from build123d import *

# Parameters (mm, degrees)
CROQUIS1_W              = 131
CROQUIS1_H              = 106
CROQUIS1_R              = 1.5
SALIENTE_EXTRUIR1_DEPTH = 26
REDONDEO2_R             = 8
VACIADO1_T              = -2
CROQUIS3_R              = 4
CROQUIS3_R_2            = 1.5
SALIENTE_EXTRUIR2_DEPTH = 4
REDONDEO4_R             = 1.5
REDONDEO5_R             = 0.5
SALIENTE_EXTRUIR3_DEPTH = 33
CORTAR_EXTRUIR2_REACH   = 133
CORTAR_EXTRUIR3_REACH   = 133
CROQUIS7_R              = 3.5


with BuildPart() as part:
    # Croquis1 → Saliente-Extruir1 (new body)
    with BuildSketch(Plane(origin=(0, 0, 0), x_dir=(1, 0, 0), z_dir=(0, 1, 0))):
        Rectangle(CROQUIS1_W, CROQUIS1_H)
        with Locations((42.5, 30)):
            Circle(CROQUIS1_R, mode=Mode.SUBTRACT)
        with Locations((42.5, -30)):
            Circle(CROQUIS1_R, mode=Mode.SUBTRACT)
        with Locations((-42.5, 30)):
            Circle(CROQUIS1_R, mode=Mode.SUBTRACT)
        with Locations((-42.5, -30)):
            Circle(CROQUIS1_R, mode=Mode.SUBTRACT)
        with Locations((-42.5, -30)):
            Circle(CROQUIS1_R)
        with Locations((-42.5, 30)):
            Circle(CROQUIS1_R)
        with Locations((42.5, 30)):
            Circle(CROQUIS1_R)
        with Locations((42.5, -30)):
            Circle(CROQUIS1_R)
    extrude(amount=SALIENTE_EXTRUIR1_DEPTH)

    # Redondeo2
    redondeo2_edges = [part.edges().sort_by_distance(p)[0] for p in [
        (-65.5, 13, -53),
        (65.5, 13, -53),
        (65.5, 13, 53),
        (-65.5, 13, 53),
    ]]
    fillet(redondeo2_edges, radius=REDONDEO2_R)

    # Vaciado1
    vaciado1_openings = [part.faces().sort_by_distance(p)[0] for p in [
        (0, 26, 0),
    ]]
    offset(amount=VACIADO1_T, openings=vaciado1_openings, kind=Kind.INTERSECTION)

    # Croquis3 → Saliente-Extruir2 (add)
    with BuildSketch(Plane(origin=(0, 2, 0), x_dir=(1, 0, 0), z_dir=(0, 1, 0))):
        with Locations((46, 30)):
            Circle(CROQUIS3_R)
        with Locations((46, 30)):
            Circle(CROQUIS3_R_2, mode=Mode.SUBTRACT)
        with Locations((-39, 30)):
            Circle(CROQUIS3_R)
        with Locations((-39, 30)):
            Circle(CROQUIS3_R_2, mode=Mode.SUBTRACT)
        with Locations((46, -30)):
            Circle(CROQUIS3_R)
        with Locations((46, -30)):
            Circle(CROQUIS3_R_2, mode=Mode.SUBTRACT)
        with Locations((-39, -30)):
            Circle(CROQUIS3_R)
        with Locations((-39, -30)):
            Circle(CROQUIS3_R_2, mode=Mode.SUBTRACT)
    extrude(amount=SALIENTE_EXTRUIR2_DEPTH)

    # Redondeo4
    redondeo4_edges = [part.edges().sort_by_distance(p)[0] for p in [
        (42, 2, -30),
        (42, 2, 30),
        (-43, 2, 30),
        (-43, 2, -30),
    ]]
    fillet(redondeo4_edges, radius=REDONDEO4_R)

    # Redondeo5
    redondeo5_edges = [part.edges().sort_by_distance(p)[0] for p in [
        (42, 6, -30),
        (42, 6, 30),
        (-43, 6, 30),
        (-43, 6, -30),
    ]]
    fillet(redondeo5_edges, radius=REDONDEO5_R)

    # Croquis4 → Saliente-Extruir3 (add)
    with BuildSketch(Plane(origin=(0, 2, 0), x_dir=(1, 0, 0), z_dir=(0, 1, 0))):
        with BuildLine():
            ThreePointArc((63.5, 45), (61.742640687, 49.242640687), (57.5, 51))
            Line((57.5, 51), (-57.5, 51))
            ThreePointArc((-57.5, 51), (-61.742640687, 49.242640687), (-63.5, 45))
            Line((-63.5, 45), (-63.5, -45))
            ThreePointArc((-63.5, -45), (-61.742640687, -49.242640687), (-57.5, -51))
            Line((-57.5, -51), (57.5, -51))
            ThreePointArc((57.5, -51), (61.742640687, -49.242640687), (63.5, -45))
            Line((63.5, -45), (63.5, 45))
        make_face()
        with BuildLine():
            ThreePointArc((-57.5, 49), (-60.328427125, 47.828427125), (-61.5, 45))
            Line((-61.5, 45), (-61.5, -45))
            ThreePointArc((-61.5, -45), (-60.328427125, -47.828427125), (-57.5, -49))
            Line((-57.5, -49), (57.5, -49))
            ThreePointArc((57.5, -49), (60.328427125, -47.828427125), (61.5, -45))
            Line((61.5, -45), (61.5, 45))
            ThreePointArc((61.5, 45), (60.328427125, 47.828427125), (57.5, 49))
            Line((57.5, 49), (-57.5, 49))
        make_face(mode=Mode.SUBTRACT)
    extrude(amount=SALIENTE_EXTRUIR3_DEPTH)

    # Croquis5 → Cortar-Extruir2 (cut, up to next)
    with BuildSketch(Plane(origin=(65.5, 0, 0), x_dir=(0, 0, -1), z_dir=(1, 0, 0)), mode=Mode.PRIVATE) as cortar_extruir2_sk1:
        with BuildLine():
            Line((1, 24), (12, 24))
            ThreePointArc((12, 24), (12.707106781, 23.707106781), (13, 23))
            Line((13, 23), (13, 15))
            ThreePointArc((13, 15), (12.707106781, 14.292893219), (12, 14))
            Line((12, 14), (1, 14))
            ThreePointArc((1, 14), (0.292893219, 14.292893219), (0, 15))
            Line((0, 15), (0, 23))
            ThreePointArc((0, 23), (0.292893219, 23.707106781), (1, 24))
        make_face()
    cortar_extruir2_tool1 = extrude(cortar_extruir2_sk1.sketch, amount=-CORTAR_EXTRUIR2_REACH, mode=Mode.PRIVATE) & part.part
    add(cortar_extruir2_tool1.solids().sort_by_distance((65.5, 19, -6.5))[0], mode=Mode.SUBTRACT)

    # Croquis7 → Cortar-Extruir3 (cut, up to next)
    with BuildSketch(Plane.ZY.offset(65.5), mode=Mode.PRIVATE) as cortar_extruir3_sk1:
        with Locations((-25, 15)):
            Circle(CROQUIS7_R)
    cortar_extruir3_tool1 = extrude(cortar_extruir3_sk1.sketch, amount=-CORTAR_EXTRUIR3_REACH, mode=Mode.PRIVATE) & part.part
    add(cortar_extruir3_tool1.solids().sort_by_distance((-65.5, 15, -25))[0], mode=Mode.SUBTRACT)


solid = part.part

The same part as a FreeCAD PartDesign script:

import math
import FreeCAD as App
import Part
import Sketcher

V = App.Vector


def edges_at(feature, points):
    """Names of the edges that pass closest to the given points."""
    edges = feature.Shape.Edges
    near = lambda p: min(range(len(edges)), key=lambda i: edges[i].distToShape(Part.Vertex(*p))[0])
    return sorted({f"Edge{near(p) + 1}" for p in points})


def faces_at(feature, points):
    """Names of the faces that lie closest to the given points."""
    faces = feature.Shape.Faces
    near = lambda p: min(range(len(faces)), key=lambda i: faces[i].distToShape(Part.Vertex(*p))[0])
    return sorted({f"Face{near(p) + 1}" for p in points})

doc = App.newDocument("Part")
body = doc.addObject("PartDesign::Body", "Body")

# Sketch on XZ plane
sketch1 = body.newObject("Sketcher::SketchObject", "Sketch")
sketch1.AttachmentSupport = (doc.getObject("XZ_Plane"), [""])
sketch1.MapMode = "FlatFace"
sketch1.addGeometry([
    Part.LineSegment(V(-66, -53, 0), V(-66, 53, 0)),
    Part.LineSegment(V(-66, 53, 0), V(66, 53, 0)),
    Part.LineSegment(V(66, 53, 0), V(66, -53, 0)),
    Part.LineSegment(V(66, -53, 0), V(-66, -53, 0)),
], False)
sketch1.addConstraint([
    Sketcher.Constraint("Coincident", 0, 2, 1, 1),
    Sketcher.Constraint("Coincident", 1, 2, 2, 1),
    Sketcher.Constraint("Coincident", 2, 2, 3, 1),
    Sketcher.Constraint("Coincident", 3, 2, 0, 1),
    Sketcher.Constraint("Vertical", 0),
    Sketcher.Constraint("Horizontal", 1),
    Sketcher.Constraint("Vertical", 2),
    Sketcher.Constraint("Horizontal", 3),
    Sketcher.Constraint("Symmetric", 0, 2, 2, 2, -1, 1),
    Sketcher.Constraint("DistanceX", 1, 1, 1, 2, 131.0),
    Sketcher.Constraint("DistanceY", 0, 1, 0, 2, 106.0),
])
pad1 = body.newObject("PartDesign::Pad", "Pad")
pad1.Profile = sketch1
pad1.Length = 26
pad1.Reversed = True
doc.recompute()

fillet = body.newObject("PartDesign::Fillet", "Fillet")
fillet.Base = (pad1, edges_at(pad1, [
    (-65.5, 13, -53),
    (65.5, 13, -53),
    (65.5, 13, 53),
    (-65.5, 13, 53),
]))
fillet.Radius = 8
doc.recompute()

thickness = body.newObject("PartDesign::Thickness", "Thickness")
thickness.Base = (fillet, faces_at(fillet, [(0, 26, 0)]))
thickness.Value = 2
thickness.Reversed = True
thickness.Join = "Intersection"

# Sketch on XZ plane
sketch2 = body.newObject("Sketcher::SketchObject", "Sketch001")
sketch2.AttachmentSupport = (doc.getObject("XZ_Plane"), [""])
sketch2.MapMode = "FlatFace"
sketch2.AttachmentOffset = App.Placement(V(0, 0, -2), App.Rotation())
sketch2.addGeometry([
    Part.Circle(V(46, -30, 0), V(0, 0, 1), 4),  # 0
    Part.Circle(V(46, -30, 0), V(0, 0, 1), 1.5),  # 1
    Part.Circle(V(-39, -30, 0), V(0, 0, 1), 4),  # 2
    Part.Circle(V(-39, -30, 0), V(0, 0, 1), 1.5),  # 3
    Part.Circle(V(46, 30, 0), V(0, 0, 1), 4),  # 4
    Part.Circle(V(46, 30, 0), V(0, 0, 1), 1.5),  # 5
    Part.Circle(V(-39, 30, 0), V(0, 0, 1), 4),  # 6
    Part.Circle(V(-39, 30, 0), V(0, 0, 1), 1.5),  # 7
], False)
sketch2.addConstraint([
    Sketcher.Constraint("Coincident", 1, 3, 0, 3),
    Sketcher.Constraint("Coincident", 3, 3, 2, 3),
    Sketcher.Constraint("Coincident", 5, 3, 4, 3),
    Sketcher.Constraint("Coincident", 7, 3, 6, 3),
    Sketcher.Constraint("Equal", 0, 2),
    Sketcher.Constraint("Equal", 1, 3),
    Sketcher.Constraint("Equal", 2, 4),
    Sketcher.Constraint("Equal", 3, 5),
    Sketcher.Constraint("Equal", 4, 6),
    Sketcher.Constraint("Equal", 5, 7),
    Sketcher.Constraint("Symmetric", 0, 3, 4, 3, -1),
    Sketcher.Constraint("Symmetric", 2, 3, 6, 3, -1),
    Sketcher.Constraint("Horizontal", 1, 3, 2, 3),
    Sketcher.Constraint("Diameter", 0, 8.0),
    Sketcher.Constraint("Diameter", 1, 3.0),
    Sketcher.Constraint("DistanceX", -1, 1, 0, 3, 46.0),
    Sketcher.Constraint("DistanceY", 0, 3, -1, 1, 30.0),
    Sketcher.Constraint("DistanceX", 2, 3, -1, 1, 39.0),
])
pad2 = body.newObject("PartDesign::Pad", "Pad001")
pad2.Profile = sketch2
pad2.Length = 4
pad2.Reversed = True
doc.recompute()

fillet2 = body.newObject("PartDesign::Fillet", "Fillet001")
fillet2.Base = (pad2, edges_at(pad2, [
    (42, 2, -30),
    (42, 2, 30),
    (-43, 2, 30),
    (-43, 2, -30),
]))
fillet2.Radius = 1.5
doc.recompute()

fillet3 = body.newObject("PartDesign::Fillet", "Fillet002")
fillet3.Base = (fillet2, edges_at(fillet2, [
    (42, 6, -30),
    (42, 6, 30),
    (-43, 6, 30),
    (-43, 6, -30),
]))
fillet3.Radius = 0.5

# Sketch on XZ plane
sketch3 = body.newObject("Sketcher::SketchObject", "Sketch002")
sketch3.AttachmentSupport = (doc.getObject("XZ_Plane"), [""])
sketch3.MapMode = "FlatFace"
sketch3.AttachmentOffset = App.Placement(V(0, 0, -2), App.Rotation())
sketch3.addGeometry([
    Part.ArcOfCircle(Part.Circle(V(57.5, -45, 0), V(0, 0, 1), 6), math.radians(-90), math.radians(0)),  # 0
    Part.LineSegment(V(57.5, -51, 0), V(-57.5, -51, 0)),  # 1
    Part.ArcOfCircle(Part.Circle(V(-57.5, -45, 0), V(0, 0, 1), 6), math.radians(180), math.radians(270)),  # 2
    Part.LineSegment(V(-63.5, -45, 0), V(-63.5, 45, 0)),  # 3
    Part.ArcOfCircle(Part.Circle(V(-57.5, 45, 0), V(0, 0, 1), 6), math.radians(90), math.radians(180)),  # 4
    Part.LineSegment(V(-57.5, 51, 0), V(57.5, 51, 0)),  # 5
    Part.ArcOfCircle(Part.Circle(V(57.5, 45, 0), V(0, 0, 1), 6), math.radians(0), math.radians(90)),  # 6
    Part.LineSegment(V(63.5, 45, 0), V(63.5, -45, 0)),  # 7
    Part.ArcOfCircle(Part.Circle(V(-57.5, -45, 0), V(0, 0, 1), 4), math.radians(180), math.radians(270)),  # 8
    Part.LineSegment(V(-57.5, -49, 0), V(57.5, -49, 0)),  # 9
    Part.ArcOfCircle(Part.Circle(V(57.5, -45, 0), V(0, 0, 1), 4), math.radians(-90), math.radians(0)),  # 10
    Part.LineSegment(V(61.5, -45, 0), V(61.5, 45, 0)),  # 11
    Part.ArcOfCircle(Part.Circle(V(57.5, 45, 0), V(0, 0, 1), 4), math.radians(0), math.radians(90)),  # 12
    Part.LineSegment(V(57.5, 49, 0), V(-57.5, 49, 0)),  # 13
    Part.ArcOfCircle(Part.Circle(V(-57.5, 45, 0), V(0, 0, 1), 4), math.radians(90), math.radians(180)),  # 14
    Part.LineSegment(V(-61.5, 45, 0), V(-61.5, -45, 0)),  # 15
], False)
sketch3.addConstraint([
    Sketcher.Constraint("Tangent", 0, 1, 1, 1),
    Sketcher.Constraint("Tangent", 1, 2, 2, 2),
    Sketcher.Constraint("Tangent", 2, 1, 3, 1),
    Sketcher.Constraint("Tangent", 3, 2, 4, 2),
    Sketcher.Constraint("Tangent", 4, 1, 5, 1),
    Sketcher.Constraint("Tangent", 5, 2, 6, 2),
    Sketcher.Constraint("Tangent", 6, 1, 7, 1),
    Sketcher.Constraint("Tangent", 7, 2, 0, 2),
    Sketcher.Constraint("Tangent", 8, 2, 9, 1),
    Sketcher.Constraint("Tangent", 9, 2, 10, 1),
    Sketcher.Constraint("Tangent", 10, 2, 11, 1),
    Sketcher.Constraint("Tangent", 11, 2, 12, 1),
    Sketcher.Constraint("Tangent", 12, 2, 13, 1),
    Sketcher.Constraint("Tangent", 13, 2, 14, 1),
    Sketcher.Constraint("Tangent", 14, 2, 15, 1),
    Sketcher.Constraint("Tangent", 15, 2, 8, 1),
    Sketcher.Constraint("Horizontal", 1),
    Sketcher.Constraint("Vertical", 3),
    Sketcher.Constraint("Horizontal", 5),
    Sketcher.Constraint("Vertical", 7),
    Sketcher.Constraint("Horizontal", 9),
    Sketcher.Constraint("Vertical", 11),
    Sketcher.Constraint("Horizontal", 13),
    Sketcher.Constraint("Vertical", 15),
    Sketcher.Constraint("Coincident", 8, 3, 2, 3),
    Sketcher.Constraint("Coincident", 10, 3, 0, 3),
    Sketcher.Constraint("Coincident", 12, 3, 6, 3),
    Sketcher.Constraint("Equal", 0, 2),
    Sketcher.Constraint("Equal", 2, 4),
    Sketcher.Constraint("Equal", 4, 6),
    Sketcher.Constraint("Equal", 12, 14),
    Sketcher.Constraint("Symmetric", 0, 3, 4, 3, -1, 1),
    Sketcher.Constraint("Radius", 0, 6.0),
    Sketcher.Constraint("Radius", 8, 4.0),
    Sketcher.Constraint("DistanceX", 1, 2, 1, 1, 115.0),
    Sketcher.Constraint("DistanceY", 3, 1, 3, 2, 90.0),
])
pad3 = body.newObject("PartDesign::Pad", "Pad002")
pad3.Profile = sketch3
pad3.Length = 33
pad3.Reversed = True

# Sketch on YZ plane
sketch4 = body.newObject("Sketcher::SketchObject", "Sketch003")
sketch4.AttachmentSupport = (doc.getObject("YZ_Plane"), [""])
sketch4.MapMode = "FlatFace"
sketch4.AttachmentOffset = App.Placement(V(0, 0, 65.5), App.Rotation())
sketch4.addGeometry([
    Part.LineSegment(V(24, -12, 0), V(24, -1, 0)),  # 0
    Part.ArcOfCircle(Part.Circle(V(23, -1, 0), V(0, 0, 1), 1), math.radians(0), math.radians(90)),  # 1
    Part.LineSegment(V(23, 0, 0), V(15, 0, 0)),  # 2
    Part.ArcOfCircle(Part.Circle(V(15, -1, 0), V(0, 0, 1), 1), math.radians(90), math.radians(180)),  # 3
    Part.LineSegment(V(14, -1, 0), V(14, -12, 0)),  # 4
    Part.ArcOfCircle(Part.Circle(V(15, -12, 0), V(0, 0, 1), 1), math.radians(-180), math.radians(-90)),  # 5
    Part.LineSegment(V(15, -13, 0), V(23, -13, 0)),  # 6
    Part.ArcOfCircle(Part.Circle(V(23, -12, 0), V(0, 0, 1), 1), math.radians(-90), math.radians(0)),  # 7
], False)
sketch4.addConstraint([
    Sketcher.Constraint("Tangent", 0, 2, 1, 1),
    Sketcher.Constraint("Tangent", 1, 2, 2, 1),
    Sketcher.Constraint("Tangent", 2, 2, 3, 1),
    Sketcher.Constraint("Tangent", 3, 2, 4, 1),
    Sketcher.Constraint("Tangent", 4, 2, 5, 1),
    Sketcher.Constraint("Tangent", 5, 2, 6, 1),
    Sketcher.Constraint("Tangent", 6, 2, 7, 1),
    Sketcher.Constraint("Tangent", 7, 2, 0, 1),
    Sketcher.Constraint("Vertical", 0),
    Sketcher.Constraint("Horizontal", 2),
    Sketcher.Constraint("Vertical", 4),
    Sketcher.Constraint("Horizontal", 6),
    Sketcher.Constraint("Equal", 1, 3),
    Sketcher.Constraint("Equal", 3, 5),
    Sketcher.Constraint("Equal", 5, 7),
    Sketcher.Constraint("PointOnObject", 1, 2, -1),
    Sketcher.Constraint("Radius", 1, 1.0),
    Sketcher.Constraint("DistanceX", 2, 2, 2, 1, 8.0),
    Sketcher.Constraint("DistanceY", 0, 1, 0, 2, 11.0),
    Sketcher.Constraint("DistanceX", -1, 1, 1, 3, 23.0),
])
pocket1 = body.newObject("PartDesign::Pocket", "Pocket")
pocket1.Profile = sketch4
pocket1.Type = "UpToFirst"

# Sketch on YZ plane
sketch5 = body.newObject("Sketcher::SketchObject", "Sketch004")
sketch5.AttachmentSupport = (doc.getObject("YZ_Plane"), [""])
sketch5.MapMode = "FlatFace"
sketch5.AttachmentOffset = App.Placement(V(0, 0, -65.5), App.Rotation())
sketch5.addGeometry(Part.Circle(V(15, -25, 0), V(0, 0, 1), 3.5), False)
sketch5.addConstraint([
    Sketcher.Constraint("Diameter", 0, 7.0),
    Sketcher.Constraint("DistanceX", -1, 1, 0, 3, 15.0),
    Sketcher.Constraint("DistanceY", 0, 3, -1, 1, 25.0),
])
pocket2 = body.newObject("PartDesign::Pocket", "Pocket001")
pocket2.Profile = sketch5
pocket2.Type = "UpToFirst"
pocket2.Reversed = True

doc.recompute()
